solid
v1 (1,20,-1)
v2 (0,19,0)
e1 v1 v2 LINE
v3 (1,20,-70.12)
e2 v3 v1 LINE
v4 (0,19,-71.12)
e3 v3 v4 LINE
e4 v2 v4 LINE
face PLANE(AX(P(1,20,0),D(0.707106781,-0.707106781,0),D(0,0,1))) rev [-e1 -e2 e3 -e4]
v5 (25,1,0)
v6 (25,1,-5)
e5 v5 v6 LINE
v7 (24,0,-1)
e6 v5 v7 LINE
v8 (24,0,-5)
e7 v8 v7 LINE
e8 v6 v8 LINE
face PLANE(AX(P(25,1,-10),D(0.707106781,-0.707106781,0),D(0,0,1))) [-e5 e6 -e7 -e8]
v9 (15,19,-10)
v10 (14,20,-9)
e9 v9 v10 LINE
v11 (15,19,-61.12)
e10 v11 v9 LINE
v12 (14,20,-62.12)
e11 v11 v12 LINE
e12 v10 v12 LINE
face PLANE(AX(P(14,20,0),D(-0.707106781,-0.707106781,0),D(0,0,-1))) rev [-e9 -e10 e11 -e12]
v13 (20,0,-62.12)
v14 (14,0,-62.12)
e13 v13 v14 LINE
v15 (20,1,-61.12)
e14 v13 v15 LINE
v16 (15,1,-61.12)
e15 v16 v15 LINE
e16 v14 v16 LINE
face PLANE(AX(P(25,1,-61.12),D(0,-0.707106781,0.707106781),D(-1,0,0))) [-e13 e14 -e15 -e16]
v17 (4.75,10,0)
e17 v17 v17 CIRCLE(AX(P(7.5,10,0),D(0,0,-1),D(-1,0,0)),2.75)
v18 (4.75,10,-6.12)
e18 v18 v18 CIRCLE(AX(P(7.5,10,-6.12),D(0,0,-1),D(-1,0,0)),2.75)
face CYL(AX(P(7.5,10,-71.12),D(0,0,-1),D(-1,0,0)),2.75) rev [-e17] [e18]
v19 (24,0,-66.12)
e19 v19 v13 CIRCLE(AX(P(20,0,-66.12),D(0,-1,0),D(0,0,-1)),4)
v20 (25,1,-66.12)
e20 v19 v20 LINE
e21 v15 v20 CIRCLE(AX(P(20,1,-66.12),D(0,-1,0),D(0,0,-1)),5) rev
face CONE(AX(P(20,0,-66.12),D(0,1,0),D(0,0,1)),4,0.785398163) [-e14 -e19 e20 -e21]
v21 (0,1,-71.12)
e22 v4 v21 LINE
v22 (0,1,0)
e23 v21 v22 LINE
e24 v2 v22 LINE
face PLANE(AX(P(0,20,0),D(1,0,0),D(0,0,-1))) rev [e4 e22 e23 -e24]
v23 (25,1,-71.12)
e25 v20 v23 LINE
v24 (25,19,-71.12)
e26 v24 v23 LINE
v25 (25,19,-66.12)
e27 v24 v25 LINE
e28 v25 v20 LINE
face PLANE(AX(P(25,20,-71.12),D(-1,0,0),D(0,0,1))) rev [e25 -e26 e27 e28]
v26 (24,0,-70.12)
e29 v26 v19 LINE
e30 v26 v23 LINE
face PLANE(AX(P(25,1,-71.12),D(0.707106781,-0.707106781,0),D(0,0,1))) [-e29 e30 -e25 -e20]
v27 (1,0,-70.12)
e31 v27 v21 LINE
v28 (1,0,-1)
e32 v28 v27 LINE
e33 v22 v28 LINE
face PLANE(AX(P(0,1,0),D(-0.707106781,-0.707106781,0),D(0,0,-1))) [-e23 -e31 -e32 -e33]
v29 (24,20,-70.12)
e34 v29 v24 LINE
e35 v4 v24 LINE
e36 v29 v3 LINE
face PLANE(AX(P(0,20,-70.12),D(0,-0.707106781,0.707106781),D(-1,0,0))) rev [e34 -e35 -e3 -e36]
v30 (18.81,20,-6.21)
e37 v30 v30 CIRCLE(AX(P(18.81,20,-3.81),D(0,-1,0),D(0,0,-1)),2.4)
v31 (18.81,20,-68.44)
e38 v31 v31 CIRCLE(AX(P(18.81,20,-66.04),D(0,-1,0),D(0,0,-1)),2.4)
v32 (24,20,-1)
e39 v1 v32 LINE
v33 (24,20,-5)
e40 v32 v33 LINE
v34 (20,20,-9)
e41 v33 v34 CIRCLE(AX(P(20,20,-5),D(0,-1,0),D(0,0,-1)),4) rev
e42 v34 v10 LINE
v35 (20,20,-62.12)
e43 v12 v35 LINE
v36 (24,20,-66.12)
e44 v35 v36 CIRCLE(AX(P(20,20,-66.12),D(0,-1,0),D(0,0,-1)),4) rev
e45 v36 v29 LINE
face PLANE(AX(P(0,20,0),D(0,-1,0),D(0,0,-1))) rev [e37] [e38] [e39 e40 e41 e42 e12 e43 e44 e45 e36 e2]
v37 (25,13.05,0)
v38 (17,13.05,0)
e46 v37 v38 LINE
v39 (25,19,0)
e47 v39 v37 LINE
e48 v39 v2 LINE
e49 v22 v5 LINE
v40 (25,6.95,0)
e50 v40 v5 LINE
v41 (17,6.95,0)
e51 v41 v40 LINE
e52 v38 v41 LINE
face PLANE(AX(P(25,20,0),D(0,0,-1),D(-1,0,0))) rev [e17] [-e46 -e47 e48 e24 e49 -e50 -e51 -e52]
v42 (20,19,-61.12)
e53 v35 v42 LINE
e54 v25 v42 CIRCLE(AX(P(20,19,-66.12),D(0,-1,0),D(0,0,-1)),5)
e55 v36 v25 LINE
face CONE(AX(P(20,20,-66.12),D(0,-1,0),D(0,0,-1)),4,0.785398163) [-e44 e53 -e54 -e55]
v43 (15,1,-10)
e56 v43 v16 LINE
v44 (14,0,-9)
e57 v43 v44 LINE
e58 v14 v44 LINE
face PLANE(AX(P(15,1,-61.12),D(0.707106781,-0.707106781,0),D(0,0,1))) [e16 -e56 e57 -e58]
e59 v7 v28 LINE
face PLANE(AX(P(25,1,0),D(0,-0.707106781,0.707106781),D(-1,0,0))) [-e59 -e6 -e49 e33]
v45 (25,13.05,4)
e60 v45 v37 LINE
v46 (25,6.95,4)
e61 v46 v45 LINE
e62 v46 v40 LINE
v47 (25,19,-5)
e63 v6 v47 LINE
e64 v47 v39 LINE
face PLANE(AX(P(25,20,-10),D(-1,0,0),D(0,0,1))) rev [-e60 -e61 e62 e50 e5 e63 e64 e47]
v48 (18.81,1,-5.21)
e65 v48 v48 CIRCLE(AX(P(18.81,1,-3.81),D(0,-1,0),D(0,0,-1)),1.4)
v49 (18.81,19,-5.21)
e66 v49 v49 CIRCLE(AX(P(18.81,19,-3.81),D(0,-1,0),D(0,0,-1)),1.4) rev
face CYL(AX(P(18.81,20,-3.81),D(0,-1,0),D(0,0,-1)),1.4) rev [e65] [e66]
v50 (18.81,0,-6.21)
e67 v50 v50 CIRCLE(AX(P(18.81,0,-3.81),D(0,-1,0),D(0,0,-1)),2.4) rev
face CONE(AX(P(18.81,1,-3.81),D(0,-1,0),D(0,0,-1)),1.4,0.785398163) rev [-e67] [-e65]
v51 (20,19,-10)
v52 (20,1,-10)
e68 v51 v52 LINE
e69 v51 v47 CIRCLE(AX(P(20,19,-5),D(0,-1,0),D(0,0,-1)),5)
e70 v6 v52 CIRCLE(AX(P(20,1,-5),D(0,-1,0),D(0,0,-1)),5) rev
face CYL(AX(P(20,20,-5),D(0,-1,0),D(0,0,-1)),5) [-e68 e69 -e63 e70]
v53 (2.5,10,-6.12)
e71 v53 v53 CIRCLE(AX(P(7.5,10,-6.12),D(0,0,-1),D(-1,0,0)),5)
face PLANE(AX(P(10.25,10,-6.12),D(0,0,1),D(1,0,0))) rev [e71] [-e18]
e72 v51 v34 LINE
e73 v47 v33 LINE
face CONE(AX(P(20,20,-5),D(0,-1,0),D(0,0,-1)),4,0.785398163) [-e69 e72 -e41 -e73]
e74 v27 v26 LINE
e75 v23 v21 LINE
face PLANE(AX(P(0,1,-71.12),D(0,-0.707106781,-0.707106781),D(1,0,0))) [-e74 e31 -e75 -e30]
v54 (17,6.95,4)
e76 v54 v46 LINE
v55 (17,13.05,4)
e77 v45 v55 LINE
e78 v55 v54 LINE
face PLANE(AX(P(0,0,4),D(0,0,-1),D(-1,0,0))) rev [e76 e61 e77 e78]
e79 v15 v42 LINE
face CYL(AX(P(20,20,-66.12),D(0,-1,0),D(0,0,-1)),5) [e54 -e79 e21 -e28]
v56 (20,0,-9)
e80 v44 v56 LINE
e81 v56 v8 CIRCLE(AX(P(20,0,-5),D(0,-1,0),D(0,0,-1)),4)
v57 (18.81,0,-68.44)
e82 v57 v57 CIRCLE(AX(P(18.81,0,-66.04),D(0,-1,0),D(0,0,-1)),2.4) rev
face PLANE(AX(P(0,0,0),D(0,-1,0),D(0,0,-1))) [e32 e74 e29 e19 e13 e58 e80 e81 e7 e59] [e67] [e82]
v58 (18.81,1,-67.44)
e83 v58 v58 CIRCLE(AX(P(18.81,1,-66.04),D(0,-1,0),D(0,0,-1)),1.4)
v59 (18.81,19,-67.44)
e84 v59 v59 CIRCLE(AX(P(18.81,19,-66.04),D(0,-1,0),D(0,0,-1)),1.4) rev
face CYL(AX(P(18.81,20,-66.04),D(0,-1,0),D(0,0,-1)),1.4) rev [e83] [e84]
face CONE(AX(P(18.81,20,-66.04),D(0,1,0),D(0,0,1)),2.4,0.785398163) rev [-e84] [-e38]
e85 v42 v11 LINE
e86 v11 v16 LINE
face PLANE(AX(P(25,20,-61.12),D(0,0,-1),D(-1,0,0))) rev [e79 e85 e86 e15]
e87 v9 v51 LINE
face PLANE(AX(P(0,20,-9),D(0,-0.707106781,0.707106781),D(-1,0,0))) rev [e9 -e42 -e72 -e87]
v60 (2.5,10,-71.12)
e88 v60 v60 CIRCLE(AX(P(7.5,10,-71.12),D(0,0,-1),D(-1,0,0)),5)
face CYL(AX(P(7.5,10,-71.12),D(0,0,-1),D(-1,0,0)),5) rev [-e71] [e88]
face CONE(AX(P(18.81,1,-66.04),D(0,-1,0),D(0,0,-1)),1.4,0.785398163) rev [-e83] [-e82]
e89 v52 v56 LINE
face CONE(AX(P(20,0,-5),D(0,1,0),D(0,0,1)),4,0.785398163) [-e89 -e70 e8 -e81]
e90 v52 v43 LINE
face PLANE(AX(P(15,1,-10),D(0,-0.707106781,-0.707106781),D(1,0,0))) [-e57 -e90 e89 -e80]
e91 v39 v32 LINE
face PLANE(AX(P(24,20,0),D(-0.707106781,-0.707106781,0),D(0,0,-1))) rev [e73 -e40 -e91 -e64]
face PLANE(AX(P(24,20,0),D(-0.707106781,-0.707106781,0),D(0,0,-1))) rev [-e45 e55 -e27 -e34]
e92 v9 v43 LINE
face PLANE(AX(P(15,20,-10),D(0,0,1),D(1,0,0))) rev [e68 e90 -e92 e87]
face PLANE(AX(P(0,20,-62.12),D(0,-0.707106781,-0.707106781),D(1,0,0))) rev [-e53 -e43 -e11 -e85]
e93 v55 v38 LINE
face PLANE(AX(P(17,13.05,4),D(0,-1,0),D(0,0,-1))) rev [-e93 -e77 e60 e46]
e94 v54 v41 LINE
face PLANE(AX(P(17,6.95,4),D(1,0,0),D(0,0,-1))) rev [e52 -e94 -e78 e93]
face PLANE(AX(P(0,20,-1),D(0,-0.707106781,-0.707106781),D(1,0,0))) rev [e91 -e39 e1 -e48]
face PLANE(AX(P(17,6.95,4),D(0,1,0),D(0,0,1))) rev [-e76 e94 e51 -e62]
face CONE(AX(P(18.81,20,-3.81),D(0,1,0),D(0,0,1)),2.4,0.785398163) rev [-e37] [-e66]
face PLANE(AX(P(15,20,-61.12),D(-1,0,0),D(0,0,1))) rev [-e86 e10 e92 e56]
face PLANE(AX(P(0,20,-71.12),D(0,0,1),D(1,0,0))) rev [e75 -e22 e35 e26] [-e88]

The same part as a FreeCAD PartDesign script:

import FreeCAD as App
import Part
import Sketcher


def edges_at(feature, points):
    """Names of the edges that pass closest to the given points."""
    edges = feature.Shape.Edges
    near = lambda p: min(range(len(edges)), key=lambda i: edges[i].distToShape(Part.Vertex(*p))[0])
    return sorted({f"Edge{near(p) + 1}" for p in points})

doc = App.newDocument("Part")
body = doc.addObject("PartDesign::Body", "Body")

# Sketch on XZ plane
sketch1 = doc.addObject("Sketcher::SketchObject", "Sketch")
body.addObject(sketch1)
sketch1.AttachmentSupport = (doc.XZ_Plane, [""])
sketch1.MapMode = "FlatFace"
sketch1.addGeometry([
    Part.LineSegment(App.Vector(0, -71.12, 0), App.Vector(0, 0, 0)),  # 0
    Part.LineSegment(App.Vector(0, 0, 0), App.Vector(25, 0, 0)),  # 1
    Part.LineSegment(App.Vector(25, 0, 0), App.Vector(25, -10, 0)),  # 2
    Part.LineSegment(App.Vector(25, -10, 0), App.Vector(15, -10, 0)),  # 3
    Part.LineSegment(App.Vector(15, -10, 0), App.Vector(15, -61.12, 0)),  # 4
    Part.LineSegment(App.Vector(15, -61.12, 0), App.Vector(25, -61.12, 0)),  # 5
    Part.LineSegment(App.Vector(25, -61.12, 0), App.Vector(25, -71.12, 0)),  # 6
    Part.LineSegment(App.Vector(25, -71.12, 0), App.Vector(0, -71.12, 0)),  # 7
], False)
sketch1.addConstraint([
    Sketcher.Constraint("Coincident", 0, 2, 1, 1),
    Sketcher.Constraint("Coincident", 1, 2, 2, 1),
    Sketcher.Constraint("Coincident", 2, 2, 3, 1),
    Sketcher.Constraint("Coincident", 3, 2, 4, 1),
    Sketcher.Constraint("Coincident", 4, 2, 5, 1),
    Sketcher.Constraint("Coincident", 5, 2, 6, 1),
    Sketcher.Constraint("Coincident", 6, 2, 7, 1),
    Sketcher.Constraint("Coincident", 7, 2, 0, 1),
    Sketcher.Constraint("Vertical", 0),
    Sketcher.Constraint("Horizontal", 1),
    Sketcher.Constraint("Vertical", 2),
    Sketcher.Constraint("Horizontal", 3),
    Sketcher.Constraint("Vertical", 4),
    Sketcher.Constraint("Horizontal", 5),
    Sketcher.Constraint("Vertical", 6),
    Sketcher.Constraint("Horizontal", 7),
    Sketcher.Constraint("Coincident", 0, 2, -1, 1),
    Sketcher.Constraint("Vertical", 2, 2, 5, 2),
    Sketcher.Constraint("Equal", 5, 2),
    Sketcher.Constraint("Equal", 2, 6),
    Sketcher.Constraint("DistanceX", 1, 1, 1, 2, 25.0),
    Sketcher.Constraint("DistanceX", 3, 2, 3, 1, 10.0),
    Sketcher.Constraint("DistanceY", 0, 1, 0, 2, 71.12),
])
pad1 = doc.addObject("PartDesign::Pad", "Pad")
body.addObject(pad1)
pad1.Profile = sketch1
pad1.Length = 20
pad1.Reversed = True

# Sketch on XY plane
sketch2 = doc.addObject("Sketcher::SketchObject", "Sketch001")
body.addObject(sketch2)
sketch2.AttachmentSupport = (doc.XY_Plane, [""])
sketch2.MapMode = "FlatFace"
sketch2.AttachmentOffset = App.Placement(App.Vector(0, 0, -71.12), App.Rotation())
sketch2.addGeometry(Part.Circle(App.Vector(7.5, 10, 0), App.Vector(0, 0, 1), 2.75), False)
sketch2.addConstraint([
    Sketcher.Constraint("Diameter", 0, 5.5),
    Sketcher.Constraint("DistanceY", -1, 1, 0, 3, 10.0),
    Sketcher.Constraint("DistanceX", -1, 1, 0, 3, 7.5),
])
doc.recompute()
hole = doc.addObject("PartDesign::Hole", "Hole")
body.addObject(hole)
hole.Profile = sketch2
hole.ThreadType = "None"
hole.Diameter = 5.5
hole.DepthType = "ThroughAll"
hole.HoleCutType = "Counterbore"
hole.HoleCutDiameter = 10
hole.HoleCutDepth = 65
hole.Reversed = True

# Sketch on XY plane
sketch3 = doc.addObject("Sketcher::SketchObject", "Sketch002")
body.addObject(sketch3)
sketch3.AttachmentSupport = (doc.XY_Plane, [""])
sketch3.MapMode = "FlatFace"
sketch3.addGeometry([
    Part.LineSegment(App.Vector(17, 13.05, 0), App.Vector(17, 6.95, 0)),
    Part.LineSegment(App.Vector(17, 6.95, 0), App.Vector(25, 6.95, 0)),
    Part.LineSegment(App.Vector(25, 6.95, 0), App.Vector(25, 13.05, 0)),
    Part.LineSegment(App.Vector(25, 13.05, 0), App.Vector(17, 13.05, 0)),
], False)
sketch3.addConstraint([
    Sketcher.Constraint("Coincident", 0, 2, 1, 1),
    Sketcher.Constraint("Coincident", 1, 2, 2, 1),
    Sketcher.Constraint("Coincident", 2, 2, 3, 1),
    Sketcher.Constraint("Coincident", 3, 2, 0, 1),
    Sketcher.Constraint("Vertical", 0),
    Sketcher.Constraint("Horizontal", 1),
    Sketcher.Constraint("Vertical", 2),
    Sketcher.Constraint("Horizontal", 3),
    Sketcher.Constraint("DistanceX", 1, 1, 1, 2, 8.0),
    Sketcher.Constraint("DistanceY", 0, 2, 0, 1, 6.1),
    Sketcher.Constraint("DistanceX", -1, 1, 0, 2, 17.0),
    Sketcher.Constraint("DistanceY", -1, 1, 0, 2, 6.95),
])
pad2 = doc.addObject("PartDesign::Pad", "Pad001")
body.addObject(pad2)
pad2.Profile = sketch3
pad2.Length = 4

# Sketch on XZ plane
sketch4 = doc.addObject("Sketcher::SketchObject", "Sketch003")
body.addObject(sketch4)
sketch4.AttachmentSupport = (doc.XZ_Plane, [""])
sketch4.MapMode = "FlatFace"
sketch4.addGeometry([
    Part.Circle(App.Vector(18.81, -3.81, 0), App.Vector(0, 0, 1), 1.4),
    Part.Circle(App.Vector(18.81, -66.04, 0), App.Vector(0, 0, 1), 1.4),
], False)
sketch4.addConstraint([
    Sketcher.Constraint("Equal", 0, 1),
    Sketcher.Constraint("Vertical", 0, 3, 1, 3),
    Sketcher.Constraint("Diameter", 0, 2.8),
    Sketcher.Constraint("DistanceX", -1, 1, 0, 3, 18.81),
    Sketcher.Constraint("DistanceY", 0, 3, -1, 1, 3.81),
    Sketcher.Constraint("DistanceY", 1, 3, -1, 1, 66.04),
])
pocket1 = doc.addObject("PartDesign::Pocket", "Pocket")
body.addObject(pocket1)
pocket1.Profile = sketch4
pocket1.Type = "ThroughAll"
doc.recompute()

fillet = doc.addObject("PartDesign::Fillet", "Fillet")
body.addObject(fillet)
fillet.Base = (pocket1, edges_at(pocket1, [(25, 10, -61.12), (25, 10, -10)]))
fillet.Radius = 5
doc.recompute()

chamfer = doc.addObject("PartDesign::Chamfer", "Chamfer")
body.addObject(chamfer)
chamfer.Base = (fillet, edges_at(fillet, [
    (15, 0, -35.56),
    (25, 0, -2.5),
    (12.5, 0, 0),
    (15, 20, -35.56),
    (17.5, 20, -61.12),
    (12.5, 20, -71.12),
    (0, 20, -35.56),
    (17.41, 20, -3.81),
    (17.41, 0, -3.81),
    (17.41, 20, -66.04),
    (17.41, 0, -66.04),
    (12.5, 20, 0),
    (17.5, 0, -10),
    (17.5, 20, -10),
    (25, 0, -68.62),
    (23.536, 0, -62.584),
    (23.536, 0, -8.536),
    (25, 20, -68.62),
    (23.536, 20, -62.584),
    (23.536, 20, -8.536),
    (0, 0, -35.56),
    (25, 20, -2.5),
    (12.5, 0, -71.12),
    (17.5, 0, -61.12),
]))
chamfer.Size = 1

doc.recompute()
